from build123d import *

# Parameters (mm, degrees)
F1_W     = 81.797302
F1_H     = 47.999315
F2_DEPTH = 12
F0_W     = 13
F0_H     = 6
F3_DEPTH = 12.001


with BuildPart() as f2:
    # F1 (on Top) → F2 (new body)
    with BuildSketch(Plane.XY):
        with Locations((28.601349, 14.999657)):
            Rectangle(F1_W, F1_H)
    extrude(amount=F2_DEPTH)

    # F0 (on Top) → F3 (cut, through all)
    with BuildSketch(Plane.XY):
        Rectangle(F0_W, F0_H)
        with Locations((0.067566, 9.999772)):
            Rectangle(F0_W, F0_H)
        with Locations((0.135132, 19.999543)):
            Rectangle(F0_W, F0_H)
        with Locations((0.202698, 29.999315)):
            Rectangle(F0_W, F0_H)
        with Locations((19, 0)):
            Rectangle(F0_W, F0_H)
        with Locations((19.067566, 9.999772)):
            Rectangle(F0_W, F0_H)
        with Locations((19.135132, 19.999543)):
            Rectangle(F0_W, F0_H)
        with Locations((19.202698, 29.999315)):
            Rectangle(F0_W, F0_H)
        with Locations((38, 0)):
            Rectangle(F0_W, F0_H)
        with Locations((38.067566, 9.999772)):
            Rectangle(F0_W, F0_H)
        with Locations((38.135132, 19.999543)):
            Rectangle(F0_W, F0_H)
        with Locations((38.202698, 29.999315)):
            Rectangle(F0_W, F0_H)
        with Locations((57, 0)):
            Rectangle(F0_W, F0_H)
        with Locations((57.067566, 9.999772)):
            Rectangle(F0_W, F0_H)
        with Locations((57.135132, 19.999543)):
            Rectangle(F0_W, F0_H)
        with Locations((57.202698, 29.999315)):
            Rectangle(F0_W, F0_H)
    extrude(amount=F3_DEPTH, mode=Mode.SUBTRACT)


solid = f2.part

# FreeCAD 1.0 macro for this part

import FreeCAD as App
import Part
import Sketcher
from FreeCAD import Vector


def add_polygon(sketch, points):
    """Adds a closed chain of lines whose ends are joined by coincident constraints."""
    first, n = sketch.GeometryCount, len(points)
    for a, b in zip(points, points[1:] + points[:1]):
        sketch.addGeometry(Part.LineSegment(App.Vector(*a, 0), App.Vector(*b, 0)), False)
    for i in range(n):
        sketch.addConstraint(Sketcher.Constraint("Coincident", first + i, 2, first + (i + 1) % n, 1))

doc = App.newDocument("Part")
body = doc.addObject("PartDesign::Body", "Body")

# Sketch on XY plane
sketch1 = body.newObject("Sketcher::SketchObject", "Sketch")
sketch1.AttachmentSupport = (doc.getObject("XY_Plane"), [""])
sketch1.MapMode = "FlatFace"
add_polygon(sketch1, [(-12, 39), (-12, -9), (70, -9), (70, 39)])  # lines 0-3
sketch1.addConstraint([
    Sketcher.Constraint("Vertical", 0),
    Sketcher.Constraint("Horizontal", 1),
    Sketcher.Constraint("Vertical", 2),
    Sketcher.Constraint("Horizontal", 3),
    Sketcher.Constraint("DistanceY", 0, 2, -1, 1, 9.000001),
    Sketcher.Constraint("DistanceX", -1, 1, 1, 2, 69.5),
    Sketcher.Constraint("DistanceX", 1, 1, 1, 2, 81.797302),
    Sketcher.Constraint("DistanceY", 0, 2, 0, 1, 47.999315),
])
pad1 = body.newObject("PartDesign::Pad", "Pad")
pad1.Profile = sketch1
pad1.Length = 12

# Sketch on XY plane
sketch2 = body.newObject("Sketcher::SketchObject", "Sketch001")
sketch2.AttachmentSupport = (doc.getObject("XY_Plane"), [""])
sketch2.MapMode = "FlatFace"
add_polygon(sketch2, [(-6, 3), (-6, -3), (6, -3), (6, 3)])  # lines 0-3
add_polygon(sketch2, [(-6, 13), (-6, 7), (7, 7), (7, 13)])  # lines 4-7
add_polygon(sketch2, [(-6, 23), (-6, 17), (7, 17), (7, 23)])  # lines 8-11
add_polygon(sketch2, [(-6, 33), (-6, 27), (7, 27), (7, 33)])  # lines 12-15
add_polygon(sketch2, [(12, 3), (12, -3), (26, -3), (26, 3)])  # lines 16-19
add_polygon(sketch2, [(13, 13), (13, 7), (26, 7), (26, 13)])  # lines 20-23
add_polygon(sketch2, [(13, 23), (13, 17), (26, 17), (26, 23)])  # lines 24-27
add_polygon(sketch2, [(13, 33), (13, 27), (26, 27), (26, 33)])  # lines 28-31
add_polygon(sketch2, [(32, 3), (32, -3), (44, -3), (44, 3)])  # lines 32-35
add_polygon(sketch2, [(32, 13), (32, 7), (45, 7), (45, 13)])  # lines 36-39
add_polygon(sketch2, [(32, 23), (32, 17), (45, 17), (45, 23)])  # lines 40-43
add_polygon(sketch2, [(32, 33), (32, 27), (45, 27), (45, 33)])  # lines 44-47
add_polygon(sketch2, [(50, 3), (50, -3), (64, -3), (64, 3)])  # lines 48-51
add_polygon(sketch2, [(51, 13), (51, 7), (64, 7), (64, 13)])  # lines 52-55
add_polygon(sketch2, [(51, 23), (51, 17), (64, 17), (64, 23)])  # lines 56-59
add_polygon(sketch2, [(51, 33), (51, 27), (64, 27), (64, 33)])  # lines 60-63
sketch2.addConstraint([
    Sketcher.Constraint("Vertical", 0),
    Sketcher.Constraint("Horizontal", 1),
    Sketcher.Constraint("Vertical", 2),
    Sketcher.Constraint("Horizontal", 3),
    Sketcher.Constraint("Vertical", 4),
    Sketcher.Constraint("Horizontal", 5),
    Sketcher.Constraint("Vertical", 6),
    Sketcher.Constraint("Horizontal", 7),
    Sketcher.Constraint("Vertical", 8),
    Sketcher.Constraint("Horizontal", 9),
    Sketcher.Constraint("Vertical", 10),
    Sketcher.Constraint("Horizontal", 11),
    Sketcher.Constraint("Vertical", 12),
    Sketcher.Constraint("Horizontal", 13),
    Sketcher.Constraint("Vertical", 14),
    Sketcher.Constraint("Horizontal", 15),
    Sketcher.Constraint("Vertical", 16),
    Sketcher.Constraint("Horizontal", 17),
    Sketcher.Constraint("Vertical", 18),
    Sketcher.Constraint("Horizontal", 19),
    Sketcher.Constraint("Vertical", 20),
    Sketcher.Constraint("Horizontal", 21),
    Sketcher.Constraint("Vertical", 22),
    Sketcher.Constraint("Horizontal", 23),
    Sketcher.Constraint("Vertical", 24),
    Sketcher.Constraint("Horizontal", 25),
    Sketcher.Constraint("Vertical", 26),
    Sketcher.Constraint("Horizontal", 27),
    Sketcher.Constraint("Vertical", 28),
    Sketcher.Constraint("Horizontal", 29),
    Sketcher.Constraint("Vertical", 30),
    Sketcher.Constraint("Horizontal", 31),
    Sketcher.Constraint("Vertical", 32),
    Sketcher.Constraint("Horizontal", 33),
    Sketcher.Constraint("Vertical", 34),
    Sketcher.Constraint("Horizontal", 35),
    Sketcher.Constraint("Vertical", 36),
    Sketcher.Constraint("Horizontal", 37),
    Sketcher.Constraint("Vertical", 38),
    Sketcher.Constraint("Horizontal", 39),
    Sketcher.Constraint("Vertical", 40),
    Sketcher.Constraint("Horizontal", 41),
    Sketcher.Constraint("Vertical", 42),
    Sketcher.Constraint("Horizontal", 43),
    Sketcher.Constraint("Vertical", 44),
    Sketcher.Constraint("Horizontal", 45),
    Sketcher.Constraint("Vertical", 46),
    Sketcher.Constraint("Horizontal", 47),
    Sketcher.Constraint("Vertical", 48),
    Sketcher.Constraint("Horizontal", 49),
    Sketcher.Constraint("Vertical", 50),
    Sketcher.Constraint("Horizontal", 51),
    Sketcher.Constraint("Vertical", 52),
    Sketcher.Constraint("Horizontal", 53),
    Sketcher.Constraint("Vertical", 54),
    Sketcher.Constraint("Horizontal", 55),
    Sketcher.Constraint("Vertical", 56),
    Sketcher.Constraint("Horizontal", 57),
    Sketcher.Constraint("Vertical", 58),
    Sketcher.Constraint("Horizontal", 59),
    Sketcher.Constraint("Vertical", 60),
    Sketcher.Constraint("Horizontal", 61),
    Sketcher.Constraint("Vertical", 62),
    Sketcher.Constraint("Horizontal", 63),
    Sketcher.Constraint("Symmetric", 0, 2, 2, 2, -1, 1),
    Sketcher.Constraint("Horizontal", 1, 2, 16, 2),
    Sketcher.Constraint("Horizontal", 3, 2, 18, 2),
    Sketcher.Constraint("Horizontal", 5, 2, 20, 2),
    Sketcher.Constraint("Horizontal", 7, 2, 22, 2),
    Sketcher.Constraint("Horizontal", 9, 2, 24, 2),
    Sketcher.Constraint("Horizontal", 11, 2, 26, 2),
    Sketcher.Constraint("Horizontal", 13, 2, 28, 2),
    Sketcher.Constraint("Horizontal", 15, 2, 30, 2),
    Sketcher.Constraint("Horizontal", 17, 2, 32, 2),
    Sketcher.Constraint("Horizontal", 19, 2, 34, 2),
    Sketcher.Constraint("Horizontal", 21, 2, 36, 2),
    Sketcher.Constraint("Horizontal", 23, 2, 38, 2),
    Sketcher.Constraint("Horizontal", 25, 2, 40, 2),
    Sketcher.Constraint("Horizontal", 27, 2, 42, 2),
    Sketcher.Constraint("Horizontal", 29, 2, 44, 2),
    Sketcher.Constraint("Horizontal", 31, 2, 46, 2),
    Sketcher.Constraint("Horizontal", 33, 2, 48, 2),
    Sketcher.Constraint("Horizontal", 35, 2, 50, 2),
    Sketcher.Constraint("Horizontal", 37, 2, 52, 2),
    Sketcher.Constraint("Horizontal", 39, 2, 54, 2),
    Sketcher.Constraint("Horizontal", 41, 2, 56, 2),
    Sketcher.Constraint("Horizontal", 43, 2, 58, 2),
    Sketcher.Constraint("Horizontal", 45, 2, 60, 2),
    Sketcher.Constraint("Horizontal", 47, 2, 62, 2),
    Sketcher.Constraint("Equal", 3, 5),
    Sketcher.Constraint("Equal", 7, 9),
    Sketcher.Constraint("Equal", 11, 13),
    Sketcher.Constraint("Equal", 15, 17),
    Sketcher.Constraint("Equal", 19, 21),
    Sketcher.Constraint("Equal", 23, 25),
    Sketcher.Constraint("Equal", 27, 29),
    Sketcher.Constraint("Equal", 31, 33),
    Sketcher.Constraint("Equal", 35, 37),
    Sketcher.Constraint("Equal", 39, 41),
    Sketcher.Constraint("Equal", 43, 45),
    Sketcher.Constraint("Equal", 47, 49),
    Sketcher.Constraint("Equal", 51, 53),
    Sketcher.Constraint("Equal", 55, 57),
    Sketcher.Constraint("Equal", 59, 61),
    Sketcher.Constraint("Equal", 2, 4),
    Sketcher.Constraint("Equal", 6, 8),
    Sketcher.Constraint("Equal", 10, 12),
    Sketcher.Constraint("DistanceX", 1, 1, 1, 2, 13.0),
    Sketcher.Constraint("DistanceY", 0, 2, 0, 1, 6.0),
    Sketcher.Constraint("DistanceX", -1, 1, 16, 2, 12.5),
    Sketcher.Constraint("DistanceX", -1, 1, 32, 2, 31.5),
    Sketcher.Constraint("DistanceX", -1, 1, 48, 2, 50.5),
    Sketcher.Constraint("DistanceX", -1, 1, 29, 2, 25.702698),
    Sketcher.Constraint("DistanceX", -1, 1, 44, 2, 31.702698),
    Sketcher.Constraint("DistanceX", 8, 2, -1, 1, 6.364868),
    Sketcher.Constraint("DistanceX", -1, 1, 25, 2, 25.635132),
    Sketcher.Constraint("DistanceX", -1, 1, 40, 2, 31.635132),
    Sketcher.Constraint("DistanceX", 4, 2, -1, 1, 6.432434),
    Sketcher.Constraint("DistanceY", -1, 1, 4, 2, 6.999772),
    Sketcher.Constraint("DistanceY", -1, 1, 8, 2, 16.999543),
    Sketcher.Constraint("DistanceX", 12, 2, -1, 1, 6.297302),
    Sketcher.Constraint("DistanceY", -1, 1, 12, 2, 26.999315),
    Sketcher.Constraint("DistanceX", -1, 1, 20, 2, 12.567566),
    Sketcher.Constraint("DistanceX", -1, 1, 36, 2, 31.567566),
    Sketcher.Constraint("DistanceX", -1, 1, 52, 2, 50.567566),
    Sketcher.Constraint("DistanceX", -1, 1, 56, 2, 50.635132),
    Sketcher.Constraint("DistanceX", -1, 1, 60, 2, 50.702698),
])
pocket1 = body.newObject("PartDesign::Pocket", "Pocket")
pocket1.Profile = sketch2
pocket1.Type = "ThroughAll"
pocket1.Reversed = True

doc.recompute()
